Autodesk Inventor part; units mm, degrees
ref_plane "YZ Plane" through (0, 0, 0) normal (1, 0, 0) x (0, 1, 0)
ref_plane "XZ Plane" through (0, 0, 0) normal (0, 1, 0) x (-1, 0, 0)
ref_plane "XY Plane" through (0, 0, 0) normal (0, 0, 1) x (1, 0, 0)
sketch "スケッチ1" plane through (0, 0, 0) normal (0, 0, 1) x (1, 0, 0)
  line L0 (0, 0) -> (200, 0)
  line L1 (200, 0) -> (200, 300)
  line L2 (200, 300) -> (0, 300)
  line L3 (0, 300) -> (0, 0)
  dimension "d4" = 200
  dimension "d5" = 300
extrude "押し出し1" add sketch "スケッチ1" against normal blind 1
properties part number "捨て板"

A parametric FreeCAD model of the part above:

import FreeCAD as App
import Part
import Sketcher
Q = App.Units.Quantity


def add_polygon(sketch, points):
    """Adds a closed chain of lines whose ends are joined by coincident constraints."""
    first, n = sketch.GeometryCount, len(points)
    for a, b in zip(points, points[1:] + points[:1]):
        sketch.addGeometry(Part.LineSegment(App.Vector(*a, 0), App.Vector(*b, 0)), False)
    for i in range(n):
        sketch.addConstraint(Sketcher.Constraint("Coincident", first + i, 2, first + (i + 1) % n, 1))

doc = App.newDocument("Part")
params = doc.addObject("Spreadsheet::Sheet", "Params")
for row, (alias, value) in enumerate([
    ("sketch1_width", "200 mm"),
    ("sketch1_height", "300 mm"),
    ("pad1_length", "1 mm"),
], start=1):
    params.set(f"A{row}", alias)
    params.set(f"B{row}", "=" + value)
    params.setAlias(f"B{row}", alias)

body = doc.addObject("PartDesign::Body", "Body")

# Sketch on XY plane
sketch1 = body.newObject("Sketcher::SketchObject", "Sketch")
sketch1.AttachmentSupport = (doc.getObject("XY_Plane"), [""])
sketch1.MapMode = "FlatFace"
add_polygon(sketch1, [(0, 300), (0, 0), (200, 0), (200, 300)])  # lines 0-3
sketch1.addConstraint([
    Sketcher.Constraint("Vertical", 0),
    Sketcher.Constraint("Horizontal", 1),
    Sketcher.Constraint("Vertical", 2),
    Sketcher.Constraint("Horizontal", 3),
    Sketcher.Constraint("Coincident", 0, 2, -1, 1),
    Sketcher.Constraint("DistanceX", 1, 1, 1, 2, Q("200 mm")),
    Sketcher.Constraint("DistanceY", 0, 2, 0, 1, Q("300 mm")),
])
sketch1.setExpression("Constraints[9]", "Params.sketch1_width")
sketch1.setExpression("Constraints[10]", "Params.sketch1_height")
pad1 = body.newObject("PartDesign::Pad", "Pad")
pad1.Profile = sketch1
pad1.setExpression("Length", "Params.pad1_length")
pad1.Reversed = True

doc.recompute()
